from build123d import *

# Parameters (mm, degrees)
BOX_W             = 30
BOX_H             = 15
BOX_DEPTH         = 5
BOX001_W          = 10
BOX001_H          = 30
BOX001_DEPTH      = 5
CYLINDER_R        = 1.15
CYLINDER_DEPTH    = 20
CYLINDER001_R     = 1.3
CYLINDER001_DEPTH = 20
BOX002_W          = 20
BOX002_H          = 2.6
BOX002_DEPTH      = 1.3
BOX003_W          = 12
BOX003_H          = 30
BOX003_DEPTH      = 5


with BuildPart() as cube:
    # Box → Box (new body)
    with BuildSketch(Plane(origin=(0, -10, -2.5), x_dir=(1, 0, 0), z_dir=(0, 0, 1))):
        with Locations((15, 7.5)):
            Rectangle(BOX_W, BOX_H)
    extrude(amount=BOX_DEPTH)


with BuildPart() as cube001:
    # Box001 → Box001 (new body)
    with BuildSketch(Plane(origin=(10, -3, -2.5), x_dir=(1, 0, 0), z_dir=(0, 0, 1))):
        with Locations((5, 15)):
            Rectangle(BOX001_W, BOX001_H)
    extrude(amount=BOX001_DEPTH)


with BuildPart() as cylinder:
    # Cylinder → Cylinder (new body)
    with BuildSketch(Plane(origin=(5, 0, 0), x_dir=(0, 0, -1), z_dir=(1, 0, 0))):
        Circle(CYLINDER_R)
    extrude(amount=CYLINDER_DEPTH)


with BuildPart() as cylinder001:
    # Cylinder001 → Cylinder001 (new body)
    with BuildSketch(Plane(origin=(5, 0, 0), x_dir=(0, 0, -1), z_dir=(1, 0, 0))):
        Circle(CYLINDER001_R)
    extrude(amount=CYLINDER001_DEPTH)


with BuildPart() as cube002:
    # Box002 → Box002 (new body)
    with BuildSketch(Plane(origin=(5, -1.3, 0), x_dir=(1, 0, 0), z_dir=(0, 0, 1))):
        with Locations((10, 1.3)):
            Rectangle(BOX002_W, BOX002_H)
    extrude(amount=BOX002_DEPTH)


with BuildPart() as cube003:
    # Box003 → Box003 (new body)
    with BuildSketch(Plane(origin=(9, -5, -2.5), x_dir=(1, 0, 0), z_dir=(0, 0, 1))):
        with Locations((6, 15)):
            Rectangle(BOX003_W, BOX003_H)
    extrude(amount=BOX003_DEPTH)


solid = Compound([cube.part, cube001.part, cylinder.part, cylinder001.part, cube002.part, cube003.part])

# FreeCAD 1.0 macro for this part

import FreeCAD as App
import Part
import Sketcher


def add_polygon(sketch, points):
    """Adds a closed chain of lines whose ends are joined by coincident constraints."""
    first, n = sketch.GeometryCount, len(points)
    for a, b in zip(points, points[1:] + points[:1]):
        sketch.addGeometry(Part.LineSegment(App.Vector(*a, 0), App.Vector(*b, 0)), False)
    for i in range(n):
        sketch.addConstraint(Sketcher.Constraint("Coincident", first + i, 2, first + (i + 1) % n, 1))

doc = App.newDocument("Part")
body = doc.addObject("PartDesign::Body", "Body")

sketch1 = body.newObject("Sketcher::SketchObject", "Sketch")
sketch1.AttachmentSupport = (doc.getObject("XY_Plane"), [""])
sketch1.MapMode = "FlatFace"
sketch1.AttachmentOffset = App.Placement(App.Vector(0, 0, -2.5), App.Rotation())
add_polygon(sketch1, [(0, 5), (0, -10), (30, -10), (30, 5)])
sketch1.addConstraint(Sketcher.Constraint("Vertical", 0))
sketch1.addConstraint(Sketcher.Constraint("Horizontal", 1))
sketch1.addConstraint(Sketcher.Constraint("Vertical", 2))
sketch1.addConstraint(Sketcher.Constraint("Horizontal", 3))
sketch1.addConstraint(Sketcher.Constraint("PointOnObject", 0, 2, -2))
sketch1.addConstraint(Sketcher.Constraint("DistanceX", 1, 1, 1, 2, 30.0))
sketch1.addConstraint(Sketcher.Constraint("DistanceY", 0, 2, 0, 1, 15.0))
sketch1.addConstraint(Sketcher.Constraint("DistanceY", 0, 2, -1, 1, 10.0))
pad1 = body.newObject("PartDesign::Pad", "Pad")
pad1.Profile = sketch1
pad1.Length = 5
body2 = doc.addObject("PartDesign::Body", "Body001")

sketch2 = body2.newObject("Sketcher::SketchObject", "Sketch001")
sketch2.AttachmentSupport = (doc.getObject("XY_Plane001"), [""])
sketch2.MapMode = "FlatFace"
sketch2.AttachmentOffset = App.Placement(App.Vector(0, 0, -2.5), App.Rotation())
add_polygon(sketch2, [(10, 27), (10, -3), (20, -3), (20, 27)])
sketch2.addConstraint(Sketcher.Constraint("Vertical", 0))
sketch2.addConstraint(Sketcher.Constraint("Horizontal", 1))
sketch2.addConstraint(Sketcher.Constraint("Vertical", 2))
sketch2.addConstraint(Sketcher.Constraint("Horizontal", 3))
sketch2.addConstraint(Sketcher.Constraint("DistanceX", 1, 1, 1, 2, 10.0))
sketch2.addConstraint(Sketcher.Constraint("DistanceY", 0, 2, 0, 1, 30.0))
sketch2.addConstraint(Sketcher.Constraint("DistanceX", -1, 1, 0, 2, 10.0))
sketch2.addConstraint(Sketcher.Constraint("DistanceY", 0, 2, -1, 1, 3.0))
pad2 = body2.newObject("PartDesign::Pad", "Pad001")
pad2.Profile = sketch2
pad2.Length = 5
body3 = doc.addObject("PartDesign::Body", "Body002")

sketch3 = body3.newObject("Sketcher::SketchObject", "Sketch002")
sketch3.AttachmentSupport = (doc.getObject("YZ_Plane002"), [""])
sketch3.MapMode = "FlatFace"
sketch3.AttachmentOffset = App.Placement(App.Vector(0, 0, 5), App.Rotation())
sketch3.addGeometry(Part.Circle(App.Vector(0, 0, 0), App.Vector(0, 0, 1), 1.15), False)
sketch3.addConstraint(Sketcher.Constraint("Coincident", 0, 3, -1, 1))
sketch3.addConstraint(Sketcher.Constraint("Diameter", 0, 2.3))
pad3 = body3.newObject("PartDesign::Pad", "Pad002")
pad3.Profile = sketch3
pad3.Length = 20
body4 = doc.addObject("PartDesign::Body", "Body003")

sketch4 = body4.newObject("Sketcher::SketchObject", "Sketch003")
sketch4.AttachmentSupport = (doc.getObject("YZ_Plane003"), [""])
sketch4.MapMode = "FlatFace"
sketch4.AttachmentOffset = App.Placement(App.Vector(0, 0, 5), App.Rotation())
sketch4.addGeometry(Part.Circle(App.Vector(0, 0, 0), App.Vector(0, 0, 1), 1.3), False)
sketch4.addConstraint(Sketcher.Constraint("Coincident", 0, 3, -1, 1))
sketch4.addConstraint(Sketcher.Constraint("Diameter", 0, 2.6))
pad4 = body4.newObject("PartDesign::Pad", "Pad003")
pad4.Profile = sketch4
pad4.Length = 20
body5 = doc.addObject("PartDesign::Body", "Body004")

sketch5 = body5.newObject("Sketcher::SketchObject", "Sketch004")
sketch5.AttachmentSupport = (doc.getObject("XY_Plane004"), [""])
sketch5.MapMode = "FlatFace"
add_polygon(sketch5, [(5, 1.3), (5, -1.3), (25, -1.3), (25, 1.3)])
sketch5.addConstraint(Sketcher.Constraint("Vertical", 0))
sketch5.addConstraint(Sketcher.Constraint("Horizontal", 1))
sketch5.addConstraint(Sketcher.Constraint("Vertical", 2))
sketch5.addConstraint(Sketcher.Constraint("Horizontal", 3))
sketch5.addConstraint(Sketcher.Constraint("DistanceX", 1, 1, 1, 2, 20.0))
sketch5.addConstraint(Sketcher.Constraint("DistanceY", 0, 2, 0, 1, 2.6))
sketch5.addConstraint(Sketcher.Constraint("DistanceX", -1, 1, 0, 2, 5.0))
sketch5.addConstraint(Sketcher.Constraint("DistanceY", 0, 2, -1, 1, 1.3))
pad5 = body5.newObject("PartDesign::Pad", "Pad004")
pad5.Profile = sketch5
pad5.Length = 1.3
body6 = doc.addObject("PartDesign::Body", "Body005")

sketch6 = body6.newObject("Sketcher::SketchObject", "Sketch005")
sketch6.AttachmentSupport = (doc.getObject("XY_Plane005"), [""])
sketch6.MapMode = "FlatFace"
sketch6.AttachmentOffset = App.Placement(App.Vector(0, 0, -2.5), App.Rotation())
add_polygon(sketch6, [(9, 25), (9, -5), (21, -5), (21, 25)])
sketch6.addConstraint(Sketcher.Constraint("Vertical", 0))
sketch6.addConstraint(Sketcher.Constraint("Horizontal", 1))
sketch6.addConstraint(Sketcher.Constraint("Vertical", 2))
sketch6.addConstraint(Sketcher.Constraint("Horizontal", 3))
sketch6.addConstraint(Sketcher.Constraint("DistanceX", 1, 1, 1, 2, 12.0))
sketch6.addConstraint(Sketcher.Constraint("DistanceY", 0, 2, 0, 1, 30.0))
sketch6.addConstraint(Sketcher.Constraint("DistanceX", -1, 1, 0, 2, 9.0))
sketch6.addConstraint(Sketcher.Constraint("DistanceY", 0, 2, -1, 1, 5.0))
pad6 = body6.newObject("PartDesign::Pad", "Pad005")
pad6.Profile = sketch6
pad6.Length = 5

doc.recompute()
